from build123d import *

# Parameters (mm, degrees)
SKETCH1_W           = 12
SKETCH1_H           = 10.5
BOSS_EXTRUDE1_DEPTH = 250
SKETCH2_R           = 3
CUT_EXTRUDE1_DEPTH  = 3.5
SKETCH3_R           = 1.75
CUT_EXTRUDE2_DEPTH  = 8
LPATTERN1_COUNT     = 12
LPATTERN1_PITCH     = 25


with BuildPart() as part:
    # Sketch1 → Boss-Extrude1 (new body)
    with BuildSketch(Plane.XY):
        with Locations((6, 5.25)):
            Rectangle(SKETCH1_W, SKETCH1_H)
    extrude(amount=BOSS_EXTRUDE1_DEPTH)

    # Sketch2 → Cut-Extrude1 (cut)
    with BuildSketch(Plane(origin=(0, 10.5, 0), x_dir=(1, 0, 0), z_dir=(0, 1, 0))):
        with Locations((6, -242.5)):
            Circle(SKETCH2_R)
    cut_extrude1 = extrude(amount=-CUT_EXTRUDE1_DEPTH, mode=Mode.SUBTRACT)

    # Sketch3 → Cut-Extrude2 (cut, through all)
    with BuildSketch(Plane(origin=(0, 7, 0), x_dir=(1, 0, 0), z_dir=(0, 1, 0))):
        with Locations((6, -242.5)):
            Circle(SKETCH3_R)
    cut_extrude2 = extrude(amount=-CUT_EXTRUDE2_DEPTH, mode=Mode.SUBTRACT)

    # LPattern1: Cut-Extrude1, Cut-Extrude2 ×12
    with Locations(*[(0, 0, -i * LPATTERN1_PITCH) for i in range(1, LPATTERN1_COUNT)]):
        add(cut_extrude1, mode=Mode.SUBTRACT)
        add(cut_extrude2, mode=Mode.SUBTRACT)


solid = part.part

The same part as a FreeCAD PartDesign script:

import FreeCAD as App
import Part
import Sketcher
from FreeCAD import Vector

doc = App.newDocument("Part")
body = doc.addObject("PartDesign::Body", "Body")

# Sketch on XY plane
sketch1 = body.newObject("Sketcher::SketchObject", "Sketch")
sketch1.AttachmentSupport = (doc.getObject("XY_Plane"), [""])
sketch1.MapMode = "FlatFace"
sketch1.addGeometry([
    Part.LineSegment(Vector(0, 10, 0), Vector(0, 0, 0)),
    Part.LineSegment(Vector(0, 0, 0), Vector(12, 0, 0)),
    Part.LineSegment(Vector(12, 0, 0), Vector(12, 10, 0)),
    Part.LineSegment(Vector(12, 10, 0), Vector(0, 10, 0)),
], False)
sketch1.addConstraint([
    Sketcher.Constraint("Coincident", 0, 2, 1, 1),
    Sketcher.Constraint("Coincident", 1, 2, 2, 1),
    Sketcher.Constraint("Coincident", 2, 2, 3, 1),
    Sketcher.Constraint("Coincident", 3, 2, 0, 1),
    Sketcher.Constraint("Vertical", 0),
    Sketcher.Constraint("Horizontal", 1),
    Sketcher.Constraint("Vertical", 2),
    Sketcher.Constraint("Horizontal", 3),
    Sketcher.Constraint("Coincident", 0, 2, -1, 1),
    Sketcher.Constraint("DistanceX", 1, 1, 1, 2, 12.0),
    Sketcher.Constraint("DistanceY", 0, 2, 0, 1, 10.5),
])
pad1 = body.newObject("PartDesign::Pad", "Pad")
pad1.Profile = sketch1
pad1.Length = 250

# Sketch on XZ plane
sketch2 = body.newObject("Sketcher::SketchObject", "Sketch001")
sketch2.AttachmentSupport = (doc.getObject("XZ_Plane"), [""])
sketch2.MapMode = "FlatFace"
sketch2.AttachmentOffset = App.Placement(Vector(0, 0, -10.5), App.Rotation())
sketch2.addGeometry(Part.Circle(Vector(6, 242.5, 0), Vector(0, 0, 1), 3), False)
sketch2.addConstraint([
    Sketcher.Constraint("Diameter", 0, 6.0),
    Sketcher.Constraint("DistanceX", -1, 1, 0, 3, 6.0),
    Sketcher.Constraint("DistanceY", -1, 1, 0, 3, 242.5),
])
pocket1 = body.newObject("PartDesign::Pocket", "Pocket")
pocket1.Profile = sketch2
pocket1.Length = 3.5
pocket1.Reversed = True

# Sketch on XZ plane
sketch3 = body.newObject("Sketcher::SketchObject", "Sketch002")
sketch3.AttachmentSupport = (doc.getObject("XZ_Plane"), [""])
sketch3.MapMode = "FlatFace"
sketch3.AttachmentOffset = App.Placement(Vector(0, 0, -7), App.Rotation())
sketch3.addGeometry(Part.Circle(Vector(6, 242.5, 0), Vector(0, 0, 1), 1.8), False)
sketch3.addConstraint([
    Sketcher.Constraint("Diameter", 0, 3.5),
    Sketcher.Constraint("DistanceX", -1, 1, 0, 3, 6.0),
    Sketcher.Constraint("DistanceY", -1, 1, 0, 3, 242.5),
])
pocket2 = body.newObject("PartDesign::Pocket", "Pocket001")
pocket2.Profile = sketch3
pocket2.Type = "ThroughAll"
pocket2.Reversed = True
doc.recompute()

linearpattern = body.newObject("PartDesign::LinearPattern", "LinearPattern")
linearpattern.Originals = [pocket1, pocket2]
linearpattern.Direction = (doc.getObject("Z_Axis"), [""])
linearpattern.Mode = "offset"
linearpattern.Offset = 25
linearpattern.Occurrences = 12
linearpattern.Reversed = True
body.Tip = linearpattern

doc.recompute()
